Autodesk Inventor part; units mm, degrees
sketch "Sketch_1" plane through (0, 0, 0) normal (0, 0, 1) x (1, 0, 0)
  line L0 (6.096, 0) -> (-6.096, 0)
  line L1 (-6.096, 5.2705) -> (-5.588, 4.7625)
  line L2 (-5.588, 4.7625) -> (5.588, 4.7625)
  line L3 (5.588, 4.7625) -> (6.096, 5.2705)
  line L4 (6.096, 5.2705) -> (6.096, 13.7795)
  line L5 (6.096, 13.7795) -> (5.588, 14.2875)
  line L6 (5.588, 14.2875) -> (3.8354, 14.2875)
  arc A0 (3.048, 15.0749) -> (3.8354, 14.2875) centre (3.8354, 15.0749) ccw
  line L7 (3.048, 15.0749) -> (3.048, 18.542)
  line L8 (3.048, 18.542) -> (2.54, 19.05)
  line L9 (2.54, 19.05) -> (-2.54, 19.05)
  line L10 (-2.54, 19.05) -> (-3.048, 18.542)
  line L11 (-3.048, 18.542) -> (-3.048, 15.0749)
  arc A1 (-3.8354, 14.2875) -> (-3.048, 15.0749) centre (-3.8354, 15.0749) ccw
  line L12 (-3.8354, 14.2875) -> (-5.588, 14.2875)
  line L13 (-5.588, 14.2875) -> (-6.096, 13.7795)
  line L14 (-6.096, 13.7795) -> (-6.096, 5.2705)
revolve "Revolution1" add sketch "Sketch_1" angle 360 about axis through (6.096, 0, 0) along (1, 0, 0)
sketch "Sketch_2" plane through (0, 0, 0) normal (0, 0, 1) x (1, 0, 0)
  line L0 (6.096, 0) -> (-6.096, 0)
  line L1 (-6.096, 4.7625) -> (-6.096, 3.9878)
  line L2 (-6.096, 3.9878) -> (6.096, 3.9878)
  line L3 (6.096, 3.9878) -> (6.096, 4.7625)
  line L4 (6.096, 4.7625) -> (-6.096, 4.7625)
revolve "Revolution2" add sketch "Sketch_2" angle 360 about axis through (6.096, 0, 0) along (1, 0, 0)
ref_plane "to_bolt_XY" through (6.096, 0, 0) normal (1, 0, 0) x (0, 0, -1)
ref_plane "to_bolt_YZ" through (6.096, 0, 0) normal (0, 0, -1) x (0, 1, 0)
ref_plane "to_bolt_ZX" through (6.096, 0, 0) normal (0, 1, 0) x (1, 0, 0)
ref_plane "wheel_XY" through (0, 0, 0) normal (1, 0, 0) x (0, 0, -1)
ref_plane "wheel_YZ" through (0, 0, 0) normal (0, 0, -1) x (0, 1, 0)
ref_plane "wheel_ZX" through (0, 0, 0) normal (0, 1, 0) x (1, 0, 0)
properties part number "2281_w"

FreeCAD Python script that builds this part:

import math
import FreeCAD as App
import Part
import Sketcher

V = App.Vector
Q = App.Units.Quantity


def add_polygon(sketch, points):
    """Adds a closed chain of lines whose ends are joined by coincident constraints."""
    first, n = sketch.GeometryCount, len(points)
    for a, b in zip(points, points[1:] + points[:1]):
        sketch.addGeometry(Part.LineSegment(App.Vector(*a, 0), App.Vector(*b, 0)), False)
    for i in range(n):
        sketch.addConstraint(Sketcher.Constraint("Coincident", first + i, 2, first + (i + 1) % n, 1))

doc = App.newDocument("Part")
body = doc.addObject("PartDesign::Body", "Body")

sketch1 = body.newObject("Sketcher::SketchObject", "Sketch")
sketch1.AttachmentSupport = (doc.getObject("XY_Plane"), [""])
sketch1.MapMode = "FlatFace"
sketch1.addGeometry([
    Part.LineSegment(V(-6.096, 13.7795, 0), V(-6.096, 5.2705, 0)),
    Part.LineSegment(V(-6.096, 5.2705, 0), V(-5.588, 4.7625, 0)),
    Part.LineSegment(V(-5.588, 4.7625, 0), V(5.588, 4.7625, 0)),
    Part.LineSegment(V(5.588, 4.7625, 0), V(6.096, 5.2705, 0)),
    Part.LineSegment(V(6.096, 5.2705, 0), V(6.096, 13.7795, 0)),
    Part.LineSegment(V(6.096, 13.7795, 0), V(5.588, 14.2875, 0)),
    Part.LineSegment(V(5.588, 14.2875, 0), V(3.8354, 14.2875, 0)),
    Part.ArcOfCircle(Part.Circle(V(3.8354, 15.0749, 0), V(0, 0, 1), 0.7874), math.radians(180), math.radians(270)),
    Part.LineSegment(V(3.048, 15.0749, 0), V(3.048, 18.542, 0)),
    Part.LineSegment(V(3.048, 18.542, 0), V(2.54, 19.05, 0)),
    Part.LineSegment(V(2.54, 19.05, 0), V(-2.54, 19.05, 0)),
    Part.LineSegment(V(-2.54, 19.05, 0), V(-3.048, 18.542, 0)),
    Part.LineSegment(V(-3.048, 18.542, 0), V(-3.048, 15.0749, 0)),
    Part.ArcOfCircle(Part.Circle(V(-3.8354, 15.0749, 0), V(0, 0, 1), 0.7874), math.radians(-90), math.radians(0)),
    Part.LineSegment(V(-3.8354, 14.2875, 0), V(-5.588, 14.2875, 0)),
    Part.LineSegment(V(-5.588, 14.2875, 0), V(-6.096, 13.7795, 0)),
], False)
sketch1.addConstraint([
    Sketcher.Constraint("Coincident", 0, 2, 1, 1),
    Sketcher.Constraint("Coincident", 1, 2, 2, 1),
    Sketcher.Constraint("Coincident", 2, 2, 3, 1),
    Sketcher.Constraint("Coincident", 3, 2, 4, 1),
    Sketcher.Constraint("Coincident", 4, 2, 5, 1),
    Sketcher.Constraint("Coincident", 5, 2, 6, 1),
    Sketcher.Constraint("Tangent", 6, 2, 7, 2),
    Sketcher.Constraint("Tangent", 7, 1, 8, 1),
    Sketcher.Constraint("Coincident", 8, 2, 9, 1),
    Sketcher.Constraint("Coincident", 9, 2, 10, 1),
    Sketcher.Constraint("Coincident", 10, 2, 11, 1),
    Sketcher.Constraint("Coincident", 11, 2, 12, 1),
    Sketcher.Constraint("Tangent", 12, 2, 13, 2),
    Sketcher.Constraint("Tangent", 13, 1, 14, 1),
    Sketcher.Constraint("Coincident", 14, 2, 15, 1),
    Sketcher.Constraint("Coincident", 15, 2, 0, 1),
    Sketcher.Constraint("Vertical", 0),
    Sketcher.Constraint("Horizontal", 2),
    Sketcher.Constraint("Vertical", 4),
    Sketcher.Constraint("Horizontal", 6),
    Sketcher.Constraint("Vertical", 8),
    Sketcher.Constraint("Horizontal", 10),
    Sketcher.Constraint("Vertical", 12),
    Sketcher.Constraint("Horizontal", 14),
    Sketcher.Constraint("Equal", 7, 13),
    Sketcher.Constraint("Symmetric", 7, 3, 13, 3, -2),
    Sketcher.Constraint("Symmetric", 0, 2, 3, 2, -2),
    Sketcher.Constraint("Perpendicular", 1, 3),
    Sketcher.Constraint("Perpendicular", 3, 5),
    Sketcher.Constraint("Parallel", 5, 9),
    Sketcher.Constraint("Perpendicular", 9, 11),
    Sketcher.Constraint("Parallel", 11, 15),
    Sketcher.Constraint("Horizontal", 8, 2, 11, 2),
    Sketcher.Constraint("Horizontal", 4, 2, 15, 2),
    Sketcher.Constraint("Vertical", 2, 2, 5, 2),
    Sketcher.Constraint("Vertical", 1, 2, 14, 2),
    Sketcher.Constraint("Equal", 5, 9),
    Sketcher.Constraint("DistanceX", 10, 2, 10, 1, Q("0.2 in")),
    Sketcher.Constraint("Radius", 7, Q("0.031 in")),
    Sketcher.Constraint("DistanceX", 2, 1, 2, 2, Q("0.44 in")),
    Sketcher.Constraint("DistanceX", 7, 1, 5, 2, Q("0.1 in")),
    Sketcher.Constraint("DistanceY", 0, 2, 0, 1, Q("0.335 in")),
    Sketcher.Constraint("DistanceY", -1, 1, 8, 2, Q("0.73 in")),
    Sketcher.Constraint("DistanceY", 8, 1, 8, 2, Q("0.1365 in")),
])
revolution = body.newObject("PartDesign::Revolution", "Revolution")
revolution.Profile = sketch1
revolution.ReferenceAxis = (sketch1, ["H_Axis"])
revolution.Angle = 360

sketch2 = body.newObject("Sketcher::SketchObject", "Sketch001")
sketch2.AttachmentSupport = (doc.getObject("XY_Plane"), [""])
sketch2.MapMode = "FlatFace"
add_polygon(sketch2, [(6.096, 4.7625), (-6.096, 4.7625), (-6.096, 3.9878), (6.096, 3.9878)])
sketch2.addConstraint([
    Sketcher.Constraint("Horizontal", 0),
    Sketcher.Constraint("Vertical", 1),
    Sketcher.Constraint("Horizontal", 2),
    Sketcher.Constraint("Vertical", 3),
    Sketcher.Constraint("DistanceX", 0, 2, 0, 1, Q("0.48 in")),
    Sketcher.Constraint("DistanceX", 0, 2, -1, 1, Q("0.24 in")),
    Sketcher.Constraint("DistanceY", 1, 2, 1, 1, Q("0.0305 in")),
    Sketcher.Constraint("DistanceY", -1, 1, 0, 2, Q("0.1875 in")),
])
revolution2 = body.newObject("PartDesign::Revolution", "Revolution001")
revolution2.Profile = sketch2
revolution2.ReferenceAxis = (sketch2, ["H_Axis"])
revolution2.Angle = 360

doc.recompute()
